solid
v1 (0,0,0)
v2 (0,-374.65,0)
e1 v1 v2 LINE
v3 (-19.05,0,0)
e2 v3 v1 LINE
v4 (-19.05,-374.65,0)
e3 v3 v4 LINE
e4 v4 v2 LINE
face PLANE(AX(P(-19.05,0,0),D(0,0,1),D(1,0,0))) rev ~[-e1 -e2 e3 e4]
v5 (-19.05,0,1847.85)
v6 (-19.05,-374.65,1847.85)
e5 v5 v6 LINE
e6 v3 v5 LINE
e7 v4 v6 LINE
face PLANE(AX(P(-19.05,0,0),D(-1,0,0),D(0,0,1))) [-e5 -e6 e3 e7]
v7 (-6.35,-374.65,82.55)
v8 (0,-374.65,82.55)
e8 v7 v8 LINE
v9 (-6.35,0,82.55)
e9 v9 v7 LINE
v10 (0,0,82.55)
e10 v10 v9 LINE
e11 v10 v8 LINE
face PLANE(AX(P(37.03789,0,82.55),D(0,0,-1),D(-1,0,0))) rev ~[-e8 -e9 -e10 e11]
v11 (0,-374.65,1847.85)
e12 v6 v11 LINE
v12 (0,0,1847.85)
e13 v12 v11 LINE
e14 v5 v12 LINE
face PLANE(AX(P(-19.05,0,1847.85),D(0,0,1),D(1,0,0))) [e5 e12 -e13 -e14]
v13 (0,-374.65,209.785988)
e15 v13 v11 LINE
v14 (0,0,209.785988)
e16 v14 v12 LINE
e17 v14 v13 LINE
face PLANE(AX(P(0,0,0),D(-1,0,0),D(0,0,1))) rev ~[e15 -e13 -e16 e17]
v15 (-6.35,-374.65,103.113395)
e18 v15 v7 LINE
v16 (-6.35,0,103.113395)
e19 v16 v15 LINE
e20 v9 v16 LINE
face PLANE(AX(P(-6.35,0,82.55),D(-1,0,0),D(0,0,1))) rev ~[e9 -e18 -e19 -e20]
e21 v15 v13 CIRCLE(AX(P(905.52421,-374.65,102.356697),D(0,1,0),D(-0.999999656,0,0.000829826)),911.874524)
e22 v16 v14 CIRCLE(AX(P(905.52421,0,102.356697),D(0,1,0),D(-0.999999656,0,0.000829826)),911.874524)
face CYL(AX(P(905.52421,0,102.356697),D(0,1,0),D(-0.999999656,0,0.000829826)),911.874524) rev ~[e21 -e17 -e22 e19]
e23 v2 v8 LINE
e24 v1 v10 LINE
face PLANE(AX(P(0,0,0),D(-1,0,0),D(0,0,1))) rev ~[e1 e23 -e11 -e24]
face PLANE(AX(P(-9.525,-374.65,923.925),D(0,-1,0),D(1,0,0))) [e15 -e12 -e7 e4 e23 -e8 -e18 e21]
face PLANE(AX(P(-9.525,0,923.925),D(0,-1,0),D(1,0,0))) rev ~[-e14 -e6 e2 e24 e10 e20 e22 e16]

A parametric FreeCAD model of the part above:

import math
import FreeCAD as App
import Part
import Sketcher
from FreeCAD import Vector
Q = App.Units.Quantity


def add_polygon(sketch, points):
    """Adds a closed chain of lines whose ends are joined by coincident constraints."""
    first, n = sketch.GeometryCount, len(points)
    for a, b in zip(points, points[1:] + points[:1]):
        sketch.addGeometry(Part.LineSegment(App.Vector(*a, 0), App.Vector(*b, 0)), False)
    for i in range(n):
        sketch.addConstraint(Sketcher.Constraint("Coincident", first + i, 2, first + (i + 1) % n, 1))

doc = App.newDocument("Part")
body = doc.addObject("PartDesign::Body", "Body")

# Sketch on XZ plane
sketch1 = doc.addObject("Sketcher::SketchObject", "Sketch")
body.addObject(sketch1)
sketch1.AttachmentSupport = (doc.XZ_Plane, [""])
sketch1.MapMode = "FlatFace"
add_polygon(sketch1, [(-19, 1848), (-19, 0), (0, 0), (0, 1848)])  # lines 0-3
sketch1.addConstraint(Sketcher.Constraint("Vertical", 0))
sketch1.addConstraint(Sketcher.Constraint("Horizontal", 1))
sketch1.addConstraint(Sketcher.Constraint("Vertical", 2))
sketch1.addConstraint(Sketcher.Constraint("Horizontal", 3))
sketch1.addConstraint(Sketcher.Constraint("Coincident", 1, 2, -1, 1))
sketch1.addConstraint(Sketcher.Constraint("DistanceX", 1, 1, 1, 2, Q("0.75 in")))
sketch1.addConstraint(Sketcher.Constraint("DistanceY", 0, 2, 0, 1, Q("72.75 in")))
pad1 = doc.addObject("PartDesign::Pad", "Pad")
body.addObject(pad1)
pad1.Profile = sketch1
pad1.Length = Q("14.75 in")

# Sketch on XZ plane
sketch2 = doc.addObject("Sketcher::SketchObject", "Sketch001")
body.addObject(sketch2)
sketch2.AttachmentSupport = (doc.XZ_Plane, [""])
sketch2.MapMode = "FlatFace"
sketch2.addGeometry(Part.ArcOfCircle(Part.Circle(Vector(906, 102, 0), Vector(0, 0, 1), 912), math.radians(173.23), math.radians(179.95)), False)
sketch2.addGeometry(Part.LineSegment(Vector(0, 210, 0), Vector(26, 210, 0)), False)
sketch2.addGeometry(Part.LineSegment(Vector(26, 210, 0), Vector(37, 83, 0)), False)
sketch2.addGeometry(Part.LineSegment(Vector(37, 83, 0), Vector(-6, 83, 0)), False)
sketch2.addGeometry(Part.LineSegment(Vector(-6, 83, 0), Vector(-6, 103, 0)), False)
sketch2.addConstraint(Sketcher.Constraint("Coincident", 0, 1, 1, 1))
sketch2.addConstraint(Sketcher.Constraint("Coincident", 1, 2, 2, 1))
sketch2.addConstraint(Sketcher.Constraint("Coincident", 2, 2, 3, 1))
sketch2.addConstraint(Sketcher.Constraint("Coincident", 3, 2, 4, 1))
sketch2.addConstraint(Sketcher.Constraint("Coincident", 4, 2, 0, 2))
sketch2.addConstraint(Sketcher.Constraint("Horizontal", 1))
sketch2.addConstraint(Sketcher.Constraint("Horizontal", 3))
sketch2.addConstraint(Sketcher.Constraint("Vertical", 4))
sketch2.addConstraint(Sketcher.Constraint("PointOnObject", 0, 1, -2))
sketch2.addConstraint(Sketcher.Constraint("DistanceY", -1, 1, 2, 2, Q("3.25 in")))
sketch2.addConstraint(Sketcher.Constraint("DistanceX", 3, 2, -1, 1, Q("0.25 in")))
sketch2.addConstraint(Sketcher.Constraint("DistanceX", 1, 1, 1, 2, 25.767399))
sketch2.addConstraint(Sketcher.Constraint("Radius", 0, 911.874524))
sketch2.addConstraint(Sketcher.Constraint("DistanceX", 3, 2, 3, 1, 43.38789))
sketch2.addConstraint(Sketcher.Constraint("Distance", 2, 127.73418))
sketch2.addConstraint(Sketcher.Constraint("DistanceY", 4, 1, 4, 2, 20.563395))
pocket1 = doc.addObject("PartDesign::Pocket", "Pocket")
body.addObject(pocket1)
pocket1.Profile = sketch2
pocket1.Type = "ThroughAll"
pocket1.Reversed = True

doc.recompute()
